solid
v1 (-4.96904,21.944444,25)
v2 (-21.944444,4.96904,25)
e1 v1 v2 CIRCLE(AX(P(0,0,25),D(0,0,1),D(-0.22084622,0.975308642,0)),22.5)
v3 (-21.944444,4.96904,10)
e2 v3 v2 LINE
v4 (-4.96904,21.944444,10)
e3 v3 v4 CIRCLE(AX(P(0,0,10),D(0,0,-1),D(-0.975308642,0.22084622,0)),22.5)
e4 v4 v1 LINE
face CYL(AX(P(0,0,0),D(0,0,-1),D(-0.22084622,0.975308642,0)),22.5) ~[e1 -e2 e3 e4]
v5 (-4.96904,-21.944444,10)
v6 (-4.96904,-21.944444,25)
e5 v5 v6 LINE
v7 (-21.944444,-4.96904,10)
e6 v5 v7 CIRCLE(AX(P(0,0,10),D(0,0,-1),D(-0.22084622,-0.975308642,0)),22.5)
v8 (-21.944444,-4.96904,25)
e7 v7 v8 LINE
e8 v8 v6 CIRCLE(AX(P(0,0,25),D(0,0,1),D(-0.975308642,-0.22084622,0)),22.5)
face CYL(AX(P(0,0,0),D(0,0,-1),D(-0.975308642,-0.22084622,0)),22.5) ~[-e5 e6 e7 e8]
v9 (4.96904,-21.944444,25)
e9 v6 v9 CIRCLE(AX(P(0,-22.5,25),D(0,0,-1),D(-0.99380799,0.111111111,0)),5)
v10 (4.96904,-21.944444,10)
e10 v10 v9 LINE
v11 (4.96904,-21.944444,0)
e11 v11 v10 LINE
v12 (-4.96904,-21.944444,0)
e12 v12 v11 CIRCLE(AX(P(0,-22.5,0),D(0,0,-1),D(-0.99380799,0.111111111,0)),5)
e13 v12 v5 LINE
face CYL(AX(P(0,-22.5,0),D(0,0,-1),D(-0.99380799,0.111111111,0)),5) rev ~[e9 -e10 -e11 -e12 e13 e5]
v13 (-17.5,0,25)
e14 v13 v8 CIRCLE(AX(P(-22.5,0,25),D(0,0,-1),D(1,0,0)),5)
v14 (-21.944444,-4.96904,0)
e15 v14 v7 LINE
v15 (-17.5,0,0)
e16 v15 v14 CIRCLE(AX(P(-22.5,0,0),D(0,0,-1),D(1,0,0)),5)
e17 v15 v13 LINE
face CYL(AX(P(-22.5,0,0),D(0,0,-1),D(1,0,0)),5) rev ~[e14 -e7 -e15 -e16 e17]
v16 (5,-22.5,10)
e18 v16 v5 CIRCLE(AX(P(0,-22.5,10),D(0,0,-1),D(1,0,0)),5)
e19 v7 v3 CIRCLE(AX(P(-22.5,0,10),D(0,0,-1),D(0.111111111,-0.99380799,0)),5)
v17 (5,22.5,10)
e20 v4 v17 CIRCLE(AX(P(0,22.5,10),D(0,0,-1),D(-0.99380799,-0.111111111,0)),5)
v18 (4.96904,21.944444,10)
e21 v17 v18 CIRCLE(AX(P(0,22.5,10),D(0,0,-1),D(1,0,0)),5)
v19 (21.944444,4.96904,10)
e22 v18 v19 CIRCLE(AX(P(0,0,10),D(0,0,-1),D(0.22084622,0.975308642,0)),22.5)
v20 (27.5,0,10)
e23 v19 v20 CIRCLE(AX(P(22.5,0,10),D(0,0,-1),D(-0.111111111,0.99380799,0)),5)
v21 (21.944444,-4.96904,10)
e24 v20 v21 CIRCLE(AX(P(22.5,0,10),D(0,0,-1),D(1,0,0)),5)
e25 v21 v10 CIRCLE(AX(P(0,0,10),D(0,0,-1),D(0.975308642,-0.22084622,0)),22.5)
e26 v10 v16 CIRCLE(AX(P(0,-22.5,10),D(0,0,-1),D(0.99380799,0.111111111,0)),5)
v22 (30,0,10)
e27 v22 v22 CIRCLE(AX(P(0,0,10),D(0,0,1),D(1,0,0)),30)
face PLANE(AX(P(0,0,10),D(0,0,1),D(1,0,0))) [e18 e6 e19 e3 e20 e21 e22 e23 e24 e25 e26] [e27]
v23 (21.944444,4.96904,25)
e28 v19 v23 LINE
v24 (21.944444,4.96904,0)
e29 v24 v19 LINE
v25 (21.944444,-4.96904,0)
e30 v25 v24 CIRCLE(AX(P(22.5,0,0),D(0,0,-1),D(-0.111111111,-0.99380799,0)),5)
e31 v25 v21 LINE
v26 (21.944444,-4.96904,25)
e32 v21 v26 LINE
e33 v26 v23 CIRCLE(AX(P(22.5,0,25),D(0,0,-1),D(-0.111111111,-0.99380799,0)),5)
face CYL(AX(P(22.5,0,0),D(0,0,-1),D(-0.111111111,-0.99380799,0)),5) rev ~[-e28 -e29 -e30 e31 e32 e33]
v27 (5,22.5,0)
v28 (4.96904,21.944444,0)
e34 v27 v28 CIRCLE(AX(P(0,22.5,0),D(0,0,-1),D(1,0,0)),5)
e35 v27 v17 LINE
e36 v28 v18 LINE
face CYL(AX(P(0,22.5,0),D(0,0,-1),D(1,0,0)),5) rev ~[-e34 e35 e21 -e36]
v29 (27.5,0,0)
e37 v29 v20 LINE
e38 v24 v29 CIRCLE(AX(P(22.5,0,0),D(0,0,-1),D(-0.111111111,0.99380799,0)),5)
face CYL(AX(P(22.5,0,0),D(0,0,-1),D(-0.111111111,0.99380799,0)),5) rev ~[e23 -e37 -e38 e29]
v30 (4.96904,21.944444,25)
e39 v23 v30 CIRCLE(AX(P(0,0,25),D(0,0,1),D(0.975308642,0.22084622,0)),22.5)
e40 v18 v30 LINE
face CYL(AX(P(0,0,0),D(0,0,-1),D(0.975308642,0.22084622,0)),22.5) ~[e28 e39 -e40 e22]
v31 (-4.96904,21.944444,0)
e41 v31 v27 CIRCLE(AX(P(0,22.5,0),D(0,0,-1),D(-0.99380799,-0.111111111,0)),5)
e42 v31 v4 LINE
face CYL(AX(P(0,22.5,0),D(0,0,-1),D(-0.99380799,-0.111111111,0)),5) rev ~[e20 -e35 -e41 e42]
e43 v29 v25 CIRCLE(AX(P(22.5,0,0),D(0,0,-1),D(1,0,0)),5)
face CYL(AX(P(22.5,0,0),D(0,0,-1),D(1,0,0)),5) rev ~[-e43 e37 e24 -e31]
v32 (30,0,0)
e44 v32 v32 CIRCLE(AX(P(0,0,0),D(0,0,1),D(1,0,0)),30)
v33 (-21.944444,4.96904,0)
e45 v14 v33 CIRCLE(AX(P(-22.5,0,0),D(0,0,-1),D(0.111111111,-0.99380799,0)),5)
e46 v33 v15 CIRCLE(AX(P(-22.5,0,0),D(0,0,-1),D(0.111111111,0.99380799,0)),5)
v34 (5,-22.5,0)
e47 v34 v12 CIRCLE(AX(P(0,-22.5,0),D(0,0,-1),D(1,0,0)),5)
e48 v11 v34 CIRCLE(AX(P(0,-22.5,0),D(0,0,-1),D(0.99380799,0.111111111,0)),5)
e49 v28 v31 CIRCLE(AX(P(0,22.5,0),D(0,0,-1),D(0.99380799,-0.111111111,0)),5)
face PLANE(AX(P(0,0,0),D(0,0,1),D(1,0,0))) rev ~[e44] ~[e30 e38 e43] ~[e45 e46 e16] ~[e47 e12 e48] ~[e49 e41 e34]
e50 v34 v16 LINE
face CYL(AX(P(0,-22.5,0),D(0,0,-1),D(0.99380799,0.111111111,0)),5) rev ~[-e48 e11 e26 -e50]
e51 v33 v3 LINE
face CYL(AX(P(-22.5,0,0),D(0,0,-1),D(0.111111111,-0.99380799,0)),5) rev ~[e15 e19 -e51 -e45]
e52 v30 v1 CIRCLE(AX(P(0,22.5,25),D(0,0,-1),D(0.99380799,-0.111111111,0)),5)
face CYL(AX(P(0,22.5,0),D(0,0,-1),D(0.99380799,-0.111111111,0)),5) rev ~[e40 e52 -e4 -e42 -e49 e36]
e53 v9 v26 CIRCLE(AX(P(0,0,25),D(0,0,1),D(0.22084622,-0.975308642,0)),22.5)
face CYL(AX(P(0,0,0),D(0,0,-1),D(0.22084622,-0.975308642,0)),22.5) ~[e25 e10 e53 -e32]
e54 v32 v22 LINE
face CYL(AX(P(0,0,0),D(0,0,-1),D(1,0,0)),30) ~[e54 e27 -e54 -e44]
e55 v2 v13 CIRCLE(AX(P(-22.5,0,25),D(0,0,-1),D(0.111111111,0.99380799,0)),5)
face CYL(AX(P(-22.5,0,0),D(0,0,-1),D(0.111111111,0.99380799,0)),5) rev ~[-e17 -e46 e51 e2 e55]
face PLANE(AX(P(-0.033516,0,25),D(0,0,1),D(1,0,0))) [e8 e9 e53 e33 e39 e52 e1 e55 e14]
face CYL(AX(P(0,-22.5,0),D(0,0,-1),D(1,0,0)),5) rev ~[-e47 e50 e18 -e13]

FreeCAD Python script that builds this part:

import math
import FreeCAD as App
import Part
import Sketcher
from FreeCAD import Vector
Q = App.Units.Quantity

doc = App.newDocument("Part")
body = doc.addObject("PartDesign::Body", "Body")

sketch1 = body.newObject("Sketcher::SketchObject", "Sketch")
sketch1.AttachmentSupport = (doc.getObject("XY_Plane"), [""])
sketch1.MapMode = "FlatFace"
sketch1.addGeometry([
    Part.ArcOfCircle(Part.Circle(Vector(22.5, 0, 0), Vector(0, 0, 1), 5), math.radians(96.37937), math.radians(263.62063)),
    Part.ArcOfCircle(Part.Circle(Vector(0, 0, 0), Vector(0, 0, 1), 22.5), math.radians(12.75874), math.radians(77.24126)),
    Part.ArcOfCircle(Part.Circle(Vector(0, 22.5, 0), Vector(0, 0, 1), 5), math.radians(-173.62063), math.radians(-6.37937)),
    Part.ArcOfCircle(Part.Circle(Vector(0, 0, 0), Vector(0, 0, 1), 22.5), math.radians(102.75874), math.radians(167.24126)),
    Part.ArcOfCircle(Part.Circle(Vector(-22.5, 0, 0), Vector(0, 0, 1), 5), math.radians(0), math.radians(83.62063)),
    Part.ArcOfCircle(Part.Circle(Vector(-22.5, 0, 0), Vector(0, 0, 1), 5), math.radians(-83.62063), math.radians(0)),
    Part.ArcOfCircle(Part.Circle(Vector(0, 0, 0), Vector(0, 0, 1), 22.5), math.radians(-167.24126), math.radians(-102.75874)),
    Part.ArcOfCircle(Part.Circle(Vector(0, -22.5, 0), Vector(0, 0, 1), 5), math.radians(6.37937), math.radians(173.62063)),
    Part.ArcOfCircle(Part.Circle(Vector(0, 0, 0), Vector(0, 0, 1), 22.5), math.radians(-77.24126), math.radians(-12.75874)),
], False)
sketch1.addConstraint([
    Sketcher.Constraint("Coincident", 0, 1, 1, 1),
    Sketcher.Constraint("Coincident", 1, 2, 2, 2),
    Sketcher.Constraint("Coincident", 2, 1, 3, 1),
    Sketcher.Constraint("Coincident", 3, 2, 4, 2),
    Sketcher.Constraint("Tangent", 4, 1, 5, 2),
    Sketcher.Constraint("Coincident", 5, 1, 6, 1),
    Sketcher.Constraint("Coincident", 6, 2, 7, 2),
    Sketcher.Constraint("Coincident", 7, 1, 8, 1),
    Sketcher.Constraint("Coincident", 8, 2, 0, 2),
    Sketcher.Constraint("Coincident", 1, 3, -1, 1),
    Sketcher.Constraint("Coincident", 3, 3, -1, 1),
    Sketcher.Constraint("Coincident", 6, 3, -1, 1),
    Sketcher.Constraint("Coincident", 8, 3, -1, 1),
    Sketcher.Constraint("Equal", 0, 2),
    Sketcher.Constraint("Equal", 1, 3),
    Sketcher.Constraint("Equal", 2, 4),
    Sketcher.Constraint("Equal", 4, 5),
    Sketcher.Constraint("Equal", 3, 6),
    Sketcher.Constraint("Equal", 5, 7),
    Sketcher.Constraint("Equal", 6, 8),
    Sketcher.Constraint("Symmetric", 0, 3, 4, 3, -1, 1),
    Sketcher.Constraint("Symmetric", 2, 3, 7, 3, -1, 1),
    Sketcher.Constraint("PointOnObject", 0, 3, -1),
    Sketcher.Constraint("PointOnObject", 2, 3, -2),
    Sketcher.Constraint("PointOnObject", 4, 1, -1),
    Sketcher.Constraint("Radius", 0, Q("5 mm")),
    Sketcher.Constraint("Radius", 1, Q("22.5 mm")),
    Sketcher.Constraint("DistanceX", 4, 3, 0, 3, Q("45 mm")),
    Sketcher.Constraint("DistanceY", -1, 1, 2, 3, Q("22.5 mm")),
])
pad1 = body.newObject("PartDesign::Pad", "Pad")
pad1.Profile = sketch1
pad1.Length = 25

sketch2 = body.newObject("Sketcher::SketchObject", "Sketch001")
sketch2.AttachmentSupport = (doc.getObject("XY_Plane"), [""])
sketch2.MapMode = "FlatFace"
sketch2.addGeometry([
    Part.Circle(Vector(0, 0, 0), Vector(0, 0, 1), 30),
    Part.ArcOfCircle(Part.Circle(Vector(0, 22.5, 0), Vector(0, 0, 1), 5), math.radians(-6.37937), math.radians(0)),
    Part.ArcOfCircle(Part.Circle(Vector(0, 0, 0), Vector(0, 0, 1), 22.5), math.radians(12.75874), math.radians(77.24126)),
    Part.ArcOfCircle(Part.Circle(Vector(22.5, 0, 0), Vector(0, 0, 1), 5), math.radians(0), math.radians(96.37937)),
    Part.ArcOfCircle(Part.Circle(Vector(22.5, 0, 0), Vector(0, 0, 1), 5), math.radians(-96.37937), math.radians(0)),
    Part.ArcOfCircle(Part.Circle(Vector(0, 0, 0), Vector(0, 0, 1), 22.5), math.radians(-77.24126), math.radians(-12.75874)),
    Part.ArcOfCircle(Part.Circle(Vector(0, -22.5, 0), Vector(0, 0, 1), 5), math.radians(0), math.radians(6.37937)),
    Part.ArcOfCircle(Part.Circle(Vector(0, -22.5, 0), Vector(0, 0, 1), 5), math.radians(173.62063), math.radians(360)),
    Part.ArcOfCircle(Part.Circle(Vector(0, 0, 0), Vector(0, 0, 1), 22.5), math.radians(-167.24126), math.radians(-102.75874)),
    Part.ArcOfCircle(Part.Circle(Vector(-22.5, 0, 0), Vector(0, 0, 1), 5), math.radians(83.62063), math.radians(276.37937)),
    Part.ArcOfCircle(Part.Circle(Vector(0, 0, 0), Vector(0, 0, 1), 22.5), math.radians(102.75874), math.radians(167.24126)),
    Part.ArcOfCircle(Part.Circle(Vector(0, 22.5, 0), Vector(0, 0, 1), 5), math.radians(0), math.radians(186.37937)),
], False)
sketch2.addConstraint([
    Sketcher.Constraint("Coincident", 1, 1, 2, 2),
    Sketcher.Constraint("Coincident", 2, 1, 3, 2),
    Sketcher.Constraint("Tangent", 3, 1, 4, 2),
    Sketcher.Constraint("Coincident", 4, 1, 5, 2),
    Sketcher.Constraint("Coincident", 5, 1, 6, 2),
    Sketcher.Constraint("Tangent", 6, 1, 7, 2),
    Sketcher.Constraint("Coincident", 7, 1, 8, 2),
    Sketcher.Constraint("Coincident", 8, 1, 9, 2),
    Sketcher.Constraint("Coincident", 9, 1, 10, 2),
    Sketcher.Constraint("Coincident", 10, 1, 11, 2),
    Sketcher.Constraint("Tangent", 11, 1, 1, 2),
    Sketcher.Constraint("Coincident", 0, 3, -1, 1),
    Sketcher.Constraint("Coincident", 2, 3, -1, 1),
    Sketcher.Constraint("Coincident", 5, 3, -1, 1),
    Sketcher.Constraint("Coincident", 8, 3, -1, 1),
    Sketcher.Constraint("Coincident", 10, 3, -1, 1),
    Sketcher.Constraint("Equal", 1, 3),
    Sketcher.Constraint("Equal", 3, 4),
    Sketcher.Constraint("Equal", 2, 5),
    Sketcher.Constraint("Equal", 4, 6),
    Sketcher.Constraint("Equal", 6, 7),
    Sketcher.Constraint("Equal", 5, 8),
    Sketcher.Constraint("Equal", 7, 9),
    Sketcher.Constraint("Equal", 8, 10),
    Sketcher.Constraint("Equal", 9, 11),
    Sketcher.Constraint("Symmetric", 1, 3, 6, 3, -1, 1),
    Sketcher.Constraint("Symmetric", 3, 3, 9, 3, -1, 1),
    Sketcher.Constraint("Symmetric", 6, 1, 11, 1, -1),
    Sketcher.Constraint("PointOnObject", 3, 3, -1),
    Sketcher.Constraint("PointOnObject", 3, 1, -1),
    Sketcher.Constraint("Horizontal", 7, 3, 6, 1),
    Sketcher.Constraint("Diameter", 0, Q("60 mm")),
    Sketcher.Constraint("Radius", 1, Q("5 mm")),
    Sketcher.Constraint("Radius", 2, Q("22.5 mm")),
    Sketcher.Constraint("DistanceY", -1, 1, 1, 3, Q("22.5 mm")),
    Sketcher.Constraint("DistanceX", -1, 1, 3, 3, Q("22.5 mm")),
])
pad2 = body.newObject("PartDesign::Pad", "Pad001")
pad2.Profile = sketch2
pad2.Length = 10

doc.recompute()
